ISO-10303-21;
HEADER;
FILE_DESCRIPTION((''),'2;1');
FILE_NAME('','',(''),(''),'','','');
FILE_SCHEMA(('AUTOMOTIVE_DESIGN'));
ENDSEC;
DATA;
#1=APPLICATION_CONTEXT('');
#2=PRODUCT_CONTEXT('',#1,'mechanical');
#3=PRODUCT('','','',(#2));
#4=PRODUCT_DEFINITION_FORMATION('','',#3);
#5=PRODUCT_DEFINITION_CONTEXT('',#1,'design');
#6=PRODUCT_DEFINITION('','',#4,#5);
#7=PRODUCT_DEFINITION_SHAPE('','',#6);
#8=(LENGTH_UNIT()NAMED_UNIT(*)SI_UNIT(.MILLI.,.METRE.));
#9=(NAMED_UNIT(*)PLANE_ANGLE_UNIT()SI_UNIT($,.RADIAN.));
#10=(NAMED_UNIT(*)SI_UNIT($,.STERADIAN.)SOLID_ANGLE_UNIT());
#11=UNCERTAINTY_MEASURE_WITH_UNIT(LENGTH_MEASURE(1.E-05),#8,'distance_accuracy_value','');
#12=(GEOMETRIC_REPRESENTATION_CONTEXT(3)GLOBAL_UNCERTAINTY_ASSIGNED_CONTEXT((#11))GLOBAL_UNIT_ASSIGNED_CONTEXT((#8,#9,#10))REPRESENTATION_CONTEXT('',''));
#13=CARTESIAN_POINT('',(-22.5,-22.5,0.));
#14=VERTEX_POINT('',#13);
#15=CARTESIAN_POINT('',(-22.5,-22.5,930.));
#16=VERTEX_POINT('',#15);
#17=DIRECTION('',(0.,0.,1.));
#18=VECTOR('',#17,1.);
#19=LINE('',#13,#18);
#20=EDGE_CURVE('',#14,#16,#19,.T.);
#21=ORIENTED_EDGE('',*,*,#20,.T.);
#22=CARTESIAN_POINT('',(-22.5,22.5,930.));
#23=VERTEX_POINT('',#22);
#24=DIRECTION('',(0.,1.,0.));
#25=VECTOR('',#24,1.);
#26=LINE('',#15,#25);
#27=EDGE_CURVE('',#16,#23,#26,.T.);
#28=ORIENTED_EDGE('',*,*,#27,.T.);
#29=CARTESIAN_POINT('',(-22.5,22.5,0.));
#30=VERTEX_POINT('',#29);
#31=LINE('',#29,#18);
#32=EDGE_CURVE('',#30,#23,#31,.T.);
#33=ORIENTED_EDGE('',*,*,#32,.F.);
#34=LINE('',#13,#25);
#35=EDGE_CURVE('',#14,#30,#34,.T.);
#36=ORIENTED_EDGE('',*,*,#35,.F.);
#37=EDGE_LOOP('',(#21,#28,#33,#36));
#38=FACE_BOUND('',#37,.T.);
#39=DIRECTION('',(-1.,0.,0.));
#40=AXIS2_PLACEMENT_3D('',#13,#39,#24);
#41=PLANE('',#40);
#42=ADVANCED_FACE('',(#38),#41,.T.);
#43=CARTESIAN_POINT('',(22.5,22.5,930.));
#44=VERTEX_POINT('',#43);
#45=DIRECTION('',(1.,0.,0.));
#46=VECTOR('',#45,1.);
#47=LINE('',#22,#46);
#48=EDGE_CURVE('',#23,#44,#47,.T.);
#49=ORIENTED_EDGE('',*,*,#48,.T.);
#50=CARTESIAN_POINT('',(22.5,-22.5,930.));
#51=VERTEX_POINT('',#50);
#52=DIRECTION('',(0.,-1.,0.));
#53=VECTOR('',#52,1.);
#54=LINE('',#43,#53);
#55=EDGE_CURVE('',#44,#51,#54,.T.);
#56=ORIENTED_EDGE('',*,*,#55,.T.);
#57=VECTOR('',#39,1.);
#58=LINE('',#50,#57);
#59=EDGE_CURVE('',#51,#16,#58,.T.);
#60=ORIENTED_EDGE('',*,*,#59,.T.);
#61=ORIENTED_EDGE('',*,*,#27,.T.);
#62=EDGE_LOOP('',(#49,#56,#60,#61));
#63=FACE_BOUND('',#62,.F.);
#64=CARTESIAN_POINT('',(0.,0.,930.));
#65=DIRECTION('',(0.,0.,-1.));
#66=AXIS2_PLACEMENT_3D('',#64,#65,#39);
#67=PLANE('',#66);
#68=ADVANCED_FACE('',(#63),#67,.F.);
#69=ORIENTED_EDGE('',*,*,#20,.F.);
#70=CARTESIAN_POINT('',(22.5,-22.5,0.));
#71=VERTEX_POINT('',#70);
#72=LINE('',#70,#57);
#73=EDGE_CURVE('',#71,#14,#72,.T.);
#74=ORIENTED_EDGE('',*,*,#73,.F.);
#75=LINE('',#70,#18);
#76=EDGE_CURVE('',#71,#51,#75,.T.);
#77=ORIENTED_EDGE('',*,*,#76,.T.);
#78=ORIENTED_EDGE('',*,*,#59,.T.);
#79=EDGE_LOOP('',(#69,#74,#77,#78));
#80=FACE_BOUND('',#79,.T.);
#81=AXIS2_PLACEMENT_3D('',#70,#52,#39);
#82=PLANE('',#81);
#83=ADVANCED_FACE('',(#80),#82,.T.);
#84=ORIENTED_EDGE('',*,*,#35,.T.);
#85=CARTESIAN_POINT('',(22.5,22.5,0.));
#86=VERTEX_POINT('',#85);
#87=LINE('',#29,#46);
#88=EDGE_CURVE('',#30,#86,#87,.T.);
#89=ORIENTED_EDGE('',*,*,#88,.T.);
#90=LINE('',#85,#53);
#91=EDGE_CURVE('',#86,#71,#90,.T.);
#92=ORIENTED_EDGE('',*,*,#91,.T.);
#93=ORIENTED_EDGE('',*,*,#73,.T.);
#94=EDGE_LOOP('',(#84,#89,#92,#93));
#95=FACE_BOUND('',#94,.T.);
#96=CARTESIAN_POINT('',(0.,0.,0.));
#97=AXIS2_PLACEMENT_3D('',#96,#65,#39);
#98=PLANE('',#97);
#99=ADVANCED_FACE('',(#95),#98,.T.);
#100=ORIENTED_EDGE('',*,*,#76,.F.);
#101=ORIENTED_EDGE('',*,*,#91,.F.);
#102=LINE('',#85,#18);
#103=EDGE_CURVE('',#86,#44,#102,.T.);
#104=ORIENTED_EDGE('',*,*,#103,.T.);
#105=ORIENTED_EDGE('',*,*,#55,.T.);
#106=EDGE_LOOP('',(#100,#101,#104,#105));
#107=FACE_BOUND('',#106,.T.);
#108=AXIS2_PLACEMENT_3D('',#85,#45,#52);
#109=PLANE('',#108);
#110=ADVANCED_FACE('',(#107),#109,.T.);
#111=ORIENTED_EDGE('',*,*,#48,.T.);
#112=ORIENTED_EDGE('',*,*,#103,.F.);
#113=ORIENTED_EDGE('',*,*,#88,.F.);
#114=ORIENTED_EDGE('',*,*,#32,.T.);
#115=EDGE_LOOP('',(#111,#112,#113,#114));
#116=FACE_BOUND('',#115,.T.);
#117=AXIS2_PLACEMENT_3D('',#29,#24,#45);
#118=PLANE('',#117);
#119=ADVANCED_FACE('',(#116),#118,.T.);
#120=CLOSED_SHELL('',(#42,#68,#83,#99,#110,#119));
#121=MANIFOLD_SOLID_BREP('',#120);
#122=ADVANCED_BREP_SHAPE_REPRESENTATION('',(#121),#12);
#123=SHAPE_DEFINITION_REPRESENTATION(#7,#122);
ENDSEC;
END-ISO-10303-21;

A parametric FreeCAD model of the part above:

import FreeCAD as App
import Part
import Sketcher

V = App.Vector
Q = App.Units.Quantity

doc = App.newDocument("Part")
body = doc.addObject("PartDesign::Body", "Body")

sketch1 = body.newObject("Sketcher::SketchObject", "Sketch")
sketch1.AttachmentSupport = (doc.getObject("XY_Plane"), [""])
sketch1.MapMode = "FlatFace"
sketch1.addGeometry([
    Part.LineSegment(V(22.5, 22.5, 0), V(22.5, -22.5, 0)),
    Part.LineSegment(V(22.5, -22.5, 0), V(-22.5, -22.5, 0)),
    Part.LineSegment(V(-22.5, -22.5, 0), V(-22.5, 22.5, 0)),
    Part.LineSegment(V(-22.5, 22.5, 0), V(22.5, 22.5, 0)),
], False)
sketch1.addConstraint([
    Sketcher.Constraint("Coincident", 0, 2, 1, 1),
    Sketcher.Constraint("Coincident", 1, 2, 2, 1),
    Sketcher.Constraint("Coincident", 2, 2, 3, 1),
    Sketcher.Constraint("Coincident", 3, 2, 0, 1),
    Sketcher.Constraint("Vertical", 0),
    Sketcher.Constraint("Horizontal", 1),
    Sketcher.Constraint("Vertical", 2),
    Sketcher.Constraint("Horizontal", 3),
    Sketcher.Constraint("Symmetric", 0, 2, 2, 2, -1, 1),
    Sketcher.Constraint("Equal", 3, 0),
    Sketcher.Constraint("DistanceX", 1, 2, 1, 1, Q("45 mm")),
])
pad1 = body.newObject("PartDesign::Pad", "Pad")
pad1.Profile = sketch1
pad1.Length = 930

doc.recompute()
